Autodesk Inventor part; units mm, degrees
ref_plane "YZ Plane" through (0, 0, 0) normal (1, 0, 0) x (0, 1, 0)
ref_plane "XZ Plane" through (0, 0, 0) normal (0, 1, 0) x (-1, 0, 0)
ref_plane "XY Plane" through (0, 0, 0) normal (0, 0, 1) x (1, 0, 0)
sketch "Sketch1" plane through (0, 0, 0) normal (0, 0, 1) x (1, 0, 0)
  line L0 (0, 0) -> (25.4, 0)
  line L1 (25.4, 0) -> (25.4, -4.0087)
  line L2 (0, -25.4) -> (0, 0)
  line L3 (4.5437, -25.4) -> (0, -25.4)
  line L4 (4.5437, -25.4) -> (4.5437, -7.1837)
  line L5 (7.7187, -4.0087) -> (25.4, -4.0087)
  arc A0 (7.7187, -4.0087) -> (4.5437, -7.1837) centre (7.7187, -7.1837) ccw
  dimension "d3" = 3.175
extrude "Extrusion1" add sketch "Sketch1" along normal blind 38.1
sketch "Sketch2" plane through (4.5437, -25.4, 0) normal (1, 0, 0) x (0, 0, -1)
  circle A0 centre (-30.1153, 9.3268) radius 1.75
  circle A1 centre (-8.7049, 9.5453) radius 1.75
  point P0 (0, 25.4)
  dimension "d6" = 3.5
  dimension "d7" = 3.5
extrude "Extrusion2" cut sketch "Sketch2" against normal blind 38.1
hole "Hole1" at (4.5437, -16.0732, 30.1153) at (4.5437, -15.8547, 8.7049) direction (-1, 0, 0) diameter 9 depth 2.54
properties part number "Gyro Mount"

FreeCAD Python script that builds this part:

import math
import FreeCAD as App
import Part
import Sketcher
from FreeCAD import Vector
Q = App.Units.Quantity

doc = App.newDocument("Part")
params = doc.addObject("Spreadsheet::Sheet", "Params")
for row, (alias, value) in enumerate([
    ("sketch1_radius", "0.125 in"),
    ("sketch1_width", "1 in"),
    ("pad1_length", "1.5 in"),
    ("pocket1_length", "1.5 in"),
    ("hole_diameter", "9 mm"),
    ("hole_depth", "0.1 in"),
], start=1):
    params.set(f"A{row}", alias)
    params.set(f"B{row}", "=" + value)
    params.setAlias(f"B{row}", alias)

body = doc.addObject("PartDesign::Body", "Body")

sketch1 = doc.addObject("Sketcher::SketchObject", "Sketch")
body.addObject(sketch1)
sketch1.AttachmentSupport = (doc.XY_Plane, [""])
sketch1.MapMode = "FlatFace"
sketch1.addGeometry(Part.LineSegment(Vector(25.4, 0, 0), Vector(0, 0, 0)), False)
sketch1.addGeometry(Part.LineSegment(Vector(0, 0, 0), Vector(0, -25.4, 0)), False)
sketch1.addGeometry(Part.LineSegment(Vector(0, -25.4, 0), Vector(4.5, -25.4, 0)), False)
sketch1.addGeometry(Part.LineSegment(Vector(4.5, -25.4, 0), Vector(4.5, -7.2, 0)), False)
sketch1.addGeometry(Part.ArcOfCircle(Part.Circle(Vector(7.7, -7.2, 0), Vector(0, 0, 1), 3.2), math.radians(90), math.radians(180)), False)
sketch1.addGeometry(Part.LineSegment(Vector(7.7, -4, 0), Vector(25.4, -4, 0)), False)
sketch1.addGeometry(Part.LineSegment(Vector(25.4, -4, 0), Vector(25.4, 0, 0)), False)
sketch1.addConstraint(Sketcher.Constraint("Coincident", 0, 2, 1, 1))
sketch1.addConstraint(Sketcher.Constraint("Coincident", 1, 2, 2, 1))
sketch1.addConstraint(Sketcher.Constraint("Coincident", 2, 2, 3, 1))
sketch1.addConstraint(Sketcher.Constraint("Tangent", 3, 2, 4, 2))
sketch1.addConstraint(Sketcher.Constraint("Tangent", 4, 1, 5, 1))
sketch1.addConstraint(Sketcher.Constraint("Coincident", 5, 2, 6, 1))
sketch1.addConstraint(Sketcher.Constraint("Coincident", 6, 2, 0, 1))
sketch1.addConstraint(Sketcher.Constraint("Horizontal", 0))
sketch1.addConstraint(Sketcher.Constraint("Vertical", 1))
sketch1.addConstraint(Sketcher.Constraint("Horizontal", 2))
sketch1.addConstraint(Sketcher.Constraint("Vertical", 3))
sketch1.addConstraint(Sketcher.Constraint("Horizontal", 5))
sketch1.addConstraint(Sketcher.Constraint("Vertical", 6))
sketch1.addConstraint(Sketcher.Constraint("Coincident", 0, 2, -1, 1))
sketch1.addConstraint(Sketcher.Constraint("Equal", 0, 1))
sketch1.addConstraint(Sketcher.Constraint("Radius", 4, Q("0.125 in")))
sketch1.addConstraint(Sketcher.Constraint("DistanceX", 0, 2, 0, 1, Q("1 in")))
sketch1.addConstraint(Sketcher.Constraint("DistanceX", 2, 1, 2, 2, 4.5437))
sketch1.addConstraint(Sketcher.Constraint("DistanceY", 3, 1, 3, 2, 18.2163))
sketch1.setExpression("Constraints[15]", "Params.sketch1_radius")
sketch1.setExpression("Constraints[16]", "Params.sketch1_width")
pad1 = doc.addObject("PartDesign::Pad", "Pad")
body.addObject(pad1)
pad1.Profile = sketch1
pad1.setExpression("Length", "Params.pad1_length")

sketch2 = doc.addObject("Sketcher::SketchObject", "Sketch001")
body.addObject(sketch2)
sketch2.AttachmentSupport = (doc.YZ_Plane, [""])
sketch2.MapMode = "FlatFace"
sketch2.AttachmentOffset = App.Placement(Vector(0, 0, 4.5437), App.Rotation())
sketch2.addGeometry(Part.Circle(Vector(-16.1, 30.1, 0), Vector(0, 0, 1), 1.8), False)
sketch2.addGeometry(Part.Circle(Vector(-15.9, 8.7, 0), Vector(0, 0, 1), 1.8), False)
sketch2.addConstraint(Sketcher.Constraint("Equal", 0, 1))
sketch2.addConstraint(Sketcher.Constraint("Diameter", 0, Q("0.1378 in")))
sketch2.addConstraint(Sketcher.Constraint("DistanceX", 0, 3, -1, 1, Q("0.6328 in")))
sketch2.addConstraint(Sketcher.Constraint("DistanceX", 1, 3, -1, 1, Q("0.6242 in")))
sketch2.addConstraint(Sketcher.Constraint("DistanceY", -1, 1, 0, 3, 30.1153))
sketch2.addConstraint(Sketcher.Constraint("DistanceY", -1, 1, 1, 3, 8.705))
pocket1 = doc.addObject("PartDesign::Pocket", "Pocket")
body.addObject(pocket1)
pocket1.Profile = sketch2
pocket1.setExpression("Length", "Params.pocket1_length")

sketch3 = doc.addObject("Sketcher::SketchObject", "Sketch002")
body.addObject(sketch3)
sketch3.AttachmentSupport = (doc.YZ_Plane, [""])
sketch3.MapMode = "FlatFace"
sketch3.AttachmentOffset = App.Placement(Vector(0, 0, 4.5437), App.Rotation())
sketch3.addGeometry(Part.Circle(Vector(-16.1, 30.1, 0), Vector(0, 0, 1), 4.5), False)
sketch3.addGeometry(Part.Circle(Vector(-15.9, 8.7, 0), Vector(0, 0, 1), 4.5), False)
sketch3.addConstraint(Sketcher.Constraint("Equal", 0, 1))
sketch3.addConstraint(Sketcher.Constraint("Diameter", 0, 9.0))
sketch3.addConstraint(Sketcher.Constraint("DistanceX", 0, 3, -1, 1, Q("0.6328 in")))
sketch3.addConstraint(Sketcher.Constraint("DistanceX", 1, 3, -1, 1, Q("0.6242 in")))
sketch3.addConstraint(Sketcher.Constraint("DistanceY", -1, 1, 0, 3, 30.1153))
sketch3.addConstraint(Sketcher.Constraint("DistanceY", -1, 1, 1, 3, 8.705))
doc.recompute()
hole = doc.addObject("PartDesign::Hole", "Hole")
body.addObject(hole)
hole.Profile = sketch3
hole.ThreadType = "None"
hole.setExpression("Diameter", "Params.hole_diameter")
hole.DepthType = "Dimension"
hole.setExpression("Depth", "Params.hole_depth")
hole.DrillPoint = "Flat"

doc.recompute()
